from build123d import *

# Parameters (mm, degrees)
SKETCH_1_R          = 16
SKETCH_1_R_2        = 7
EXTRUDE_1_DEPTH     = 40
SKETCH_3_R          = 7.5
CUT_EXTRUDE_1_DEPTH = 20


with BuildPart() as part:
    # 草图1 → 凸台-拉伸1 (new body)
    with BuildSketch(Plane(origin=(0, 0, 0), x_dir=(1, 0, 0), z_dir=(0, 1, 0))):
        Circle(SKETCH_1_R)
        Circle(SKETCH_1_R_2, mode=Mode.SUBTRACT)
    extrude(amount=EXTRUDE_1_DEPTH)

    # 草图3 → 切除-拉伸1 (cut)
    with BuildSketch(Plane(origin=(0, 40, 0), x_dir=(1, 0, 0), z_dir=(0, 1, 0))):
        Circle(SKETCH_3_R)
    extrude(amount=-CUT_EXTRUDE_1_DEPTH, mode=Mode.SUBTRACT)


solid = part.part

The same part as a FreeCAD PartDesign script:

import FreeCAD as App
import Part
import Sketcher
from FreeCAD import Vector
Q = App.Units.Quantity

doc = App.newDocument("Part")
params = doc.addObject("Spreadsheet::Sheet", "Params")
for row, (alias, value) in enumerate([
    ("sketch1_diameter", "32 mm"),
    ("sketch1_diameter2", "14 mm"),
    ("pad1_length", "40 mm"),
    ("sketch2_diameter", "15 mm"),
    ("pocket1_length", "20 mm"),
], start=1):
    params.set(f"A{row}", alias)
    params.set(f"B{row}", "=" + value)
    params.setAlias(f"B{row}", alias)

body = doc.addObject("PartDesign::Body", "Body")

sketch1 = doc.addObject("Sketcher::SketchObject", "Sketch")
body.addObject(sketch1)
sketch1.AttachmentSupport = (doc.XZ_Plane, [""])
sketch1.MapMode = "FlatFace"
sketch1.addGeometry(Part.Circle(Vector(0, 0, 0), Vector(0, 0, 1), 16), False)
sketch1.addGeometry(Part.Circle(Vector(0, 0, 0), Vector(0, 0, 1), 7), False)
sketch1.addConstraint(Sketcher.Constraint("Coincident", 0, 3, -1, 1))
sketch1.addConstraint(Sketcher.Constraint("Coincident", 1, 3, -1, 1))
sketch1.addConstraint(Sketcher.Constraint("Diameter", 0, Q("32 mm")))
sketch1.addConstraint(Sketcher.Constraint("Diameter", 1, Q("14 mm")))
sketch1.setExpression("Constraints[2]", "Params.sketch1_diameter")
sketch1.setExpression("Constraints[3]", "Params.sketch1_diameter2")
pad1 = doc.addObject("PartDesign::Pad", "Pad")
body.addObject(pad1)
pad1.Profile = sketch1
pad1.setExpression("Length", "Params.pad1_length")
pad1.Reversed = True

sketch2 = doc.addObject("Sketcher::SketchObject", "Sketch001")
body.addObject(sketch2)
sketch2.AttachmentSupport = (doc.XZ_Plane, [""])
sketch2.MapMode = "FlatFace"
sketch2.AttachmentOffset = App.Placement(Vector(0, 0, -40), App.Rotation())
sketch2.addGeometry(Part.Circle(Vector(0, 0, 0), Vector(0, 0, 1), 7.5), False)
sketch2.addConstraint(Sketcher.Constraint("Coincident", 0, 3, -1, 1))
sketch2.addConstraint(Sketcher.Constraint("Diameter", 0, Q("15 mm")))
sketch2.setExpression("Constraints[1]", "Params.sketch2_diameter")
pocket1 = doc.addObject("PartDesign::Pocket", "Pocket")
body.addObject(pocket1)
pocket1.Profile = sketch2
pocket1.setExpression("Length", "Params.pocket1_length")
pocket1.Reversed = True

doc.recompute()
